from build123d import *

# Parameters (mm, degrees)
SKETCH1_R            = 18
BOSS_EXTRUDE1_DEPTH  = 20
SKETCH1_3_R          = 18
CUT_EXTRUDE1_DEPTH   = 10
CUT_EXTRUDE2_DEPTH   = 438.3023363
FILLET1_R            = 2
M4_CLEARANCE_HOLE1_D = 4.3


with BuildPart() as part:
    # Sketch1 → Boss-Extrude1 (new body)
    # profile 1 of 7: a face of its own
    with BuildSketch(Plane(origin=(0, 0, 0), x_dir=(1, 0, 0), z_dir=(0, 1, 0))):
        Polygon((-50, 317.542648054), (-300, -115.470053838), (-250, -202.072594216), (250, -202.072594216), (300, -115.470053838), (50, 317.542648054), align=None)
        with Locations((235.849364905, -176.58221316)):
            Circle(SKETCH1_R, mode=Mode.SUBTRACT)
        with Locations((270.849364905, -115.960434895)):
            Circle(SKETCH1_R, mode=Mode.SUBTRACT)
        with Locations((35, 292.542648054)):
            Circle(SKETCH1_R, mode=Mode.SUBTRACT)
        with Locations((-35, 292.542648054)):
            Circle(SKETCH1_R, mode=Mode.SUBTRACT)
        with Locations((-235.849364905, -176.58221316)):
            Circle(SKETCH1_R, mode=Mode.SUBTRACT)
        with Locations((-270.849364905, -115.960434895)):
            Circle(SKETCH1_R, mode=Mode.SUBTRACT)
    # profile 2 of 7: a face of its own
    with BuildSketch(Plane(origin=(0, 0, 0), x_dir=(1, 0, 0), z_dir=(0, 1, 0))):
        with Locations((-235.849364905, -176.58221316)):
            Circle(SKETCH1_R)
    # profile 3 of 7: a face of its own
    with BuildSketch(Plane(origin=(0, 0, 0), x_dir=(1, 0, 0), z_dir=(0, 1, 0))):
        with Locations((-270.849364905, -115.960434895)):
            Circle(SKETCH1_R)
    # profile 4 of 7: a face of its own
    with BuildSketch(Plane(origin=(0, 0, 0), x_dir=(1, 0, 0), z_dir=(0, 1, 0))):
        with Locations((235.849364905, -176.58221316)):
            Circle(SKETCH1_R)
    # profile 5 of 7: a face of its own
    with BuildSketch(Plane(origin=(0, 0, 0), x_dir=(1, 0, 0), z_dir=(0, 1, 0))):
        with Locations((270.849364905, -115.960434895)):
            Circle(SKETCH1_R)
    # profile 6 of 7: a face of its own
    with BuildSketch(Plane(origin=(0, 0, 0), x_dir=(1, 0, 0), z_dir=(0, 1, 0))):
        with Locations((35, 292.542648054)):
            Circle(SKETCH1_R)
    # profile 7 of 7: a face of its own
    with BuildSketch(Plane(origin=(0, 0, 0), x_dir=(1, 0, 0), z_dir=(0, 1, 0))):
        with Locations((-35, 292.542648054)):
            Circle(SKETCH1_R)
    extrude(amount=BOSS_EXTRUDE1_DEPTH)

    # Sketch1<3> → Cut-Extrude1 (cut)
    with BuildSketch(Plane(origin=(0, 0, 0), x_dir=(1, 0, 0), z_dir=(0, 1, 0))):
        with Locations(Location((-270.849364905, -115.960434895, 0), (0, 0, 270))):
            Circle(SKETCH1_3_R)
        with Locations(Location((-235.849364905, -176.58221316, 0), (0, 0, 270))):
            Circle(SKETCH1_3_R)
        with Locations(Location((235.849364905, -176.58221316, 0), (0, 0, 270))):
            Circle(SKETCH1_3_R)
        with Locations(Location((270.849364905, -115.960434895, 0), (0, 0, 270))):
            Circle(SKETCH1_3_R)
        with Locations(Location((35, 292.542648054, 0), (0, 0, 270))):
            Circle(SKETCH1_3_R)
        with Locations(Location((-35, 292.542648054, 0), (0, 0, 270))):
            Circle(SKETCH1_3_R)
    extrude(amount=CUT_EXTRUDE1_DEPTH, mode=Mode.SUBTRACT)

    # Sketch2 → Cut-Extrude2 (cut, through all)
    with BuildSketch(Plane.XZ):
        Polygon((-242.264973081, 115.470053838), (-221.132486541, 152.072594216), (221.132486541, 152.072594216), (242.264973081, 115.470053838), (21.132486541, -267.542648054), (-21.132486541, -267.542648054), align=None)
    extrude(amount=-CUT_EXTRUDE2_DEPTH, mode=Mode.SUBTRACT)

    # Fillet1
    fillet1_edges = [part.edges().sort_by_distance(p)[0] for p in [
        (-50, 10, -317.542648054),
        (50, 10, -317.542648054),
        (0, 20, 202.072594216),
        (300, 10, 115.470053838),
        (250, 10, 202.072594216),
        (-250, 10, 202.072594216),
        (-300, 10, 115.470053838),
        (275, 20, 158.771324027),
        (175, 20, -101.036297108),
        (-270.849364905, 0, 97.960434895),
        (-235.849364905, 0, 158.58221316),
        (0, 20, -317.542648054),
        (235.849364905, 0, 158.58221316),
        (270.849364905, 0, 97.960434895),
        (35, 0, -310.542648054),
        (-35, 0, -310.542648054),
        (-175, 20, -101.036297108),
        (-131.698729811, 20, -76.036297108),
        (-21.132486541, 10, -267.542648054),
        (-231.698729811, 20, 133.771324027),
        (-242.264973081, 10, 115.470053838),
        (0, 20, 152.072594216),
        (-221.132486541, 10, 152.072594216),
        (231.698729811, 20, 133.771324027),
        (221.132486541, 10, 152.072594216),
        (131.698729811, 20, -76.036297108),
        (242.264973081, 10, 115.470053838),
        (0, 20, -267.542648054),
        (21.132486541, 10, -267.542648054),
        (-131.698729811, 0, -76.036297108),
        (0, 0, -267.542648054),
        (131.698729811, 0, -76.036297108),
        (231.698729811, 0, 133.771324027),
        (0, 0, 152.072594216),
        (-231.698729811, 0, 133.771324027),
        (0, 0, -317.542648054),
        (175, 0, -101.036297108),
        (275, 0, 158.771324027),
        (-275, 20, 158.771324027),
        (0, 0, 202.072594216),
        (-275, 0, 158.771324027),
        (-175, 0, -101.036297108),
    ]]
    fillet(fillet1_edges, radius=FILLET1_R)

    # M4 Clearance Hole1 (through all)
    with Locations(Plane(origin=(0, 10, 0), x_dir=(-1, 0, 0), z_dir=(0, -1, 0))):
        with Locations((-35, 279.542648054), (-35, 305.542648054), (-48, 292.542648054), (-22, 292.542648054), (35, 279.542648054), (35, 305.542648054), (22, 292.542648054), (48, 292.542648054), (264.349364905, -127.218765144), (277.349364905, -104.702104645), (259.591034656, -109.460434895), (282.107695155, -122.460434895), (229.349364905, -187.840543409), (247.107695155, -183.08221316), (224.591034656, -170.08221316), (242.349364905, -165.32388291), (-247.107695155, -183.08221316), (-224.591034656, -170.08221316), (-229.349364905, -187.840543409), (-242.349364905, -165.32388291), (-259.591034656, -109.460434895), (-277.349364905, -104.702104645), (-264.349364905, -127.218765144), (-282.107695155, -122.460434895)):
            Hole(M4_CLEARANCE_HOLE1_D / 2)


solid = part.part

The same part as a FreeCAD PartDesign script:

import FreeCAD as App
import Part
import Sketcher

V = App.Vector
Q = App.Units.Quantity


def edges_at(feature, points):
    """Names of the edges that pass closest to the given points."""
    edges = feature.Shape.Edges
    near = lambda p: min(range(len(edges)), key=lambda i: edges[i].distToShape(Part.Vertex(*p))[0])
    return sorted({f"Edge{near(p) + 1}" for p in points})


def add_polygon(sketch, points):
    """Adds a closed chain of lines whose ends are joined by coincident constraints."""
    first, n = sketch.GeometryCount, len(points)
    for a, b in zip(points, points[1:] + points[:1]):
        sketch.addGeometry(Part.LineSegment(App.Vector(*a, 0), App.Vector(*b, 0)), False)
    for i in range(n):
        sketch.addConstraint(Sketcher.Constraint("Coincident", first + i, 2, first + (i + 1) % n, 1))

doc = App.newDocument("Part")
body = doc.addObject("PartDesign::Body", "Body")

sketch1 = body.newObject("Sketcher::SketchObject", "Sketch")
sketch1.AttachmentSupport = (doc.getObject("XZ_Plane"), [""])
sketch1.MapMode = "FlatFace"
add_polygon(sketch1, [(-50, -318), (-300, 115), (-250, 202), (250, 202), (300, 115), (50, -318)])
sketch1.addConstraint([
    Sketcher.Constraint("Horizontal", 2),
    Sketcher.Constraint("Horizontal", 5),
    Sketcher.Constraint("Symmetric", 0, 2, 3, 2, -2),
    Sketcher.Constraint("Parallel", 0, 3),
    Sketcher.Constraint("Parallel", 1, 4),
    Sketcher.Constraint("Equal", 1, 3),
    Sketcher.Constraint("DistanceX", 2, 1, 2, 2, 500.0),
    Sketcher.Constraint("DistanceX", 5, 2, 5, 1, 100.0),
    Sketcher.Constraint("Angle", 0, Q("120 deg")),
    Sketcher.Constraint("Distance", 0, 500.0),
    Sketcher.Constraint("DistanceY", 4, 2, -1, 1, 317.542648),
])
pad1 = body.newObject("PartDesign::Pad", "Pad")
pad1.Profile = sketch1
pad1.Length = 20
pad1.Reversed = True

sketch2 = body.newObject("Sketcher::SketchObject", "Sketch001")
sketch2.AttachmentSupport = (doc.getObject("XZ_Plane"), [""])
sketch2.MapMode = "FlatFace"
sketch2.addGeometry([
    Part.Circle(V(-271, 116, 0), V(0, 0, 1), 18),
    Part.Circle(V(-236, 177, 0), V(0, 0, 1), 18),
    Part.Circle(V(236, 177, 0), V(0, 0, 1), 18),
    Part.Circle(V(271, 116, 0), V(0, 0, 1), 18),
    Part.Circle(V(35, -293, 0), V(0, 0, 1), 18),
    Part.Circle(V(-35, -293, 0), V(0, 0, 1), 18),
], False)
sketch2.addConstraint([
    Sketcher.Constraint("Equal", 0, 1),
    Sketcher.Constraint("Equal", 1, 2),
    Sketcher.Constraint("Equal", 2, 3),
    Sketcher.Constraint("Equal", 3, 4),
    Sketcher.Constraint("Equal", 4, 5),
    Sketcher.Constraint("Symmetric", 1, 3, 2, 3, -2),
    Sketcher.Constraint("Symmetric", 0, 3, 3, 3, -2),
    Sketcher.Constraint("Symmetric", 4, 3, 5, 3, -2),
    Sketcher.Constraint("Diameter", 0, 36.0),
    Sketcher.Constraint("DistanceX", -1, 1, 4, 3, 35.0),
    Sketcher.Constraint("DistanceX", 0, 3, 1, 3, 35.0),
    Sketcher.Constraint("DistanceY", 4, 3, -1, 1, 292.542648),
    Sketcher.Constraint("DistanceY", 0, 3, 1, 3, 60.621778),
    Sketcher.Constraint("DistanceX", 1, 3, 2, 3, 471.69873),
    Sketcher.Constraint("DistanceY", 4, 3, 2, 3, 469.124861),
])
pocket1 = body.newObject("PartDesign::Pocket", "Pocket")
pocket1.Profile = sketch2
pocket1.Length = 10

sketch3 = body.newObject("Sketcher::SketchObject", "Sketch002")
sketch3.AttachmentSupport = (doc.getObject("XZ_Plane"), [""])
sketch3.MapMode = "FlatFace"
add_polygon(sketch3, [(-221, 152), (-242, 115), (-21, -268), (21, -268), (242, 115), (221, 152)])
sketch3.addConstraint([
    Sketcher.Constraint("Horizontal", 2),
    Sketcher.Constraint("Horizontal", 5),
    Sketcher.Constraint("Symmetric", 0, 2, 3, 2, -2),
    Sketcher.Constraint("Parallel", 0, 3),
    Sketcher.Constraint("Parallel", 1, 4),
    Sketcher.Constraint("Equal", 1, 3),
    Sketcher.Constraint("Angle", 0, Q("-120 deg")),
    Sketcher.Constraint("DistanceX", 2, 2, 4, 2, 200.0),
    Sketcher.Constraint("DistanceY", 1, 2, 0, 2, 383.012702),
    Sketcher.Constraint("DistanceX", 2, 1, 2, 2, 42.264973),
    Sketcher.Constraint("DistanceY", 1, 2, -1, 1, 267.542648),
])
pocket2 = body.newObject("PartDesign::Pocket", "Pocket001")
pocket2.Profile = sketch3
pocket2.Type = "ThroughAll"
doc.recompute()

fillet = body.newObject("PartDesign::Fillet", "Fillet")
fillet.Base = (pocket2, edges_at(pocket2, [
    (-50, 10, -317.543),
    (50, 10, -317.543),
    (0, 20, 202.073),
    (300, 10, 115.47),
    (250, 10, 202.073),
    (-250, 10, 202.073),
    (-300, 10, 115.47),
    (275, 20, 158.771),
    (175, 20, -101.036),
    (-270.849, 0, 97.96),
    (-235.849, 0, 158.582),
    (0, 20, -317.543),
    (235.849, 0, 158.582),
    (270.849, 0, 97.96),
    (35, 0, -310.543),
    (-35, 0, -310.543),
    (-175, 20, -101.036),
    (-131.699, 20, -76.036),
    (-21.132, 10, -267.543),
    (-231.699, 20, 133.771),
    (-242.265, 10, 115.47),
    (0, 20, 152.073),
    (-221.132, 10, 152.073),
    (231.699, 20, 133.771),
    (221.132, 10, 152.073),
    (131.699, 20, -76.036),
    (242.265, 10, 115.47),
    (0, 20, -267.543),
    (21.132, 10, -267.543),
    (-131.699, 0, -76.036),
    (0, 0, -267.543),
    (131.699, 0, -76.036),
    (231.699, 0, 133.771),
    (0, 0, 152.073),
    (-231.699, 0, 133.771),
    (0, 0, -317.543),
    (175, 0, -101.036),
    (275, 0, 158.771),
    (-275, 20, 158.771),
    (0, 0, 202.073),
    (-275, 0, 158.771),
    (-175, 0, -101.036),
]))
fillet.Radius = 2

sketch4 = body.newObject("Sketcher::SketchObject", "Sketch003")
sketch4.AttachmentSupport = (doc.getObject("XZ_Plane"), [""])
sketch4.MapMode = "FlatFace"
sketch4.AttachmentOffset = App.Placement(V(0, 0, -10), App.Rotation())
sketch4.addGeometry([
    Part.Circle(V(35, -279.5, 0), V(0, 0, 1), 2.1),
    Part.Circle(V(35, -305.5, 0), V(0, 0, 1), 2.1),
    Part.Circle(V(48, -292.5, 0), V(0, 0, 1), 2.1),
    Part.Circle(V(22, -292.5, 0), V(0, 0, 1), 2.1),
    Part.Circle(V(-35, -279.5, 0), V(0, 0, 1), 2.1),
    Part.Circle(V(-35, -305.5, 0), V(0, 0, 1), 2.1),
    Part.Circle(V(-22, -292.5, 0), V(0, 0, 1), 2.1),
    Part.Circle(V(-48, -292.5, 0), V(0, 0, 1), 2.1),
    Part.Circle(V(-264.3, 127.2, 0), V(0, 0, 1), 2.1),
    Part.Circle(V(-277.3, 104.7, 0), V(0, 0, 1), 2.1),
    Part.Circle(V(-259.6, 109.5, 0), V(0, 0, 1), 2.1),
    Part.Circle(V(-282.1, 122.5, 0), V(0, 0, 1), 2.1),
    Part.Circle(V(-229.3, 187.8, 0), V(0, 0, 1), 2.1),
    Part.Circle(V(-247.1, 183.1, 0), V(0, 0, 1), 2.1),
    Part.Circle(V(-224.6, 170.1, 0), V(0, 0, 1), 2.1),
    Part.Circle(V(-242.3, 165.3, 0), V(0, 0, 1), 2.1),
    Part.Circle(V(247.1, 183.1, 0), V(0, 0, 1), 2.1),
    Part.Circle(V(224.6, 170.1, 0), V(0, 0, 1), 2.1),
    Part.Circle(V(229.3, 187.8, 0), V(0, 0, 1), 2.1),
    Part.Circle(V(242.3, 165.3, 0), V(0, 0, 1), 2.1),
    Part.Circle(V(259.6, 109.5, 0), V(0, 0, 1), 2.1),
    Part.Circle(V(277.3, 104.7, 0), V(0, 0, 1), 2.1),
    Part.Circle(V(264.3, 127.2, 0), V(0, 0, 1), 2.1),
    Part.Circle(V(282.1, 122.5, 0), V(0, 0, 1), 2.1),
], False)
sketch4.addConstraint([
    Sketcher.Constraint("Equal", 0, 1),
    Sketcher.Constraint("Equal", 1, 2),
    Sketcher.Constraint("Equal", 2, 3),
    Sketcher.Constraint("Equal", 3, 4),
    Sketcher.Constraint("Equal", 4, 5),
    Sketcher.Constraint("Equal", 5, 6),
    Sketcher.Constraint("Equal", 6, 7),
    Sketcher.Constraint("Equal", 7, 8),
    Sketcher.Constraint("Equal", 8, 9),
    Sketcher.Constraint("Equal", 9, 10),
    Sketcher.Constraint("Equal", 10, 11),
    Sketcher.Constraint("Equal", 11, 12),
    Sketcher.Constraint("Equal", 12, 13),
    Sketcher.Constraint("Equal", 13, 14),
    Sketcher.Constraint("Equal", 14, 15),
    Sketcher.Constraint("Equal", 15, 16),
    Sketcher.Constraint("Equal", 16, 17),
    Sketcher.Constraint("Equal", 17, 18),
    Sketcher.Constraint("Equal", 18, 19),
    Sketcher.Constraint("Equal", 19, 20),
    Sketcher.Constraint("Equal", 20, 21),
    Sketcher.Constraint("Equal", 21, 22),
    Sketcher.Constraint("Equal", 22, 23),
    Sketcher.Constraint("Symmetric", 0, 3, 4, 3, -2),
    Sketcher.Constraint("Symmetric", 1, 3, 5, 3, -2),
    Sketcher.Constraint("Symmetric", 3, 3, 6, 3, -2),
    Sketcher.Constraint("Symmetric", 2, 3, 7, 3, -2),
    Sketcher.Constraint("Symmetric", 13, 3, 16, 3, -2),
    Sketcher.Constraint("Symmetric", 14, 3, 17, 3, -2),
    Sketcher.Constraint("Symmetric", 12, 3, 18, 3, -2),
    Sketcher.Constraint("Symmetric", 15, 3, 19, 3, -2),
    Sketcher.Constraint("Symmetric", 10, 3, 20, 3, -2),
    Sketcher.Constraint("Symmetric", 9, 3, 21, 3, -2),
    Sketcher.Constraint("Symmetric", 8, 3, 22, 3, -2),
    Sketcher.Constraint("Symmetric", 11, 3, 23, 3, -2),
    Sketcher.Constraint("Horizontal", 2, 3, 3, 3),
    Sketcher.Constraint("Vertical", 0, 3, 1, 3),
    Sketcher.Constraint("Diameter", 0, 4.3),
    Sketcher.Constraint("DistanceX", -1, 1, 0, 3, 35.0),
    Sketcher.Constraint("DistanceX", -1, 1, 2, 3, 48.0),
    Sketcher.Constraint("DistanceX", -1, 1, 3, 3, 22.0),
    Sketcher.Constraint("DistanceY", 1, 3, 0, 3, 26.0),
    Sketcher.Constraint("DistanceY", 2, 3, 0, 3, 13.0),
    Sketcher.Constraint("DistanceX", 9, 3, 8, 3, 13.0),
    Sketcher.Constraint("DistanceY", 10, 3, 11, 3, 13.0),
    Sketcher.Constraint("DistanceX", 8, 3, 12, 3, 35.0),
    Sketcher.Constraint("DistanceX", 11, 3, 13, 3, 35.0),
    Sketcher.Constraint("DistanceY", 14, 3, 13, 3, 13.0),
    Sketcher.Constraint("DistanceX", 10, 3, 14, 3, 35.0),
    Sketcher.Constraint("DistanceX", 15, 3, 12, 3, 13.0),
    Sketcher.Constraint("DistanceX", 12, 3, 17, 3, 453.9404),
    Sketcher.Constraint("DistanceY", 0, 3, -1, 1, 279.542648),
    Sketcher.Constraint("DistanceY", 9, 3, 8, 3, 22.51666),
    Sketcher.Constraint("DistanceX", 8, 3, 10, 3, 4.75833),
    Sketcher.Constraint("DistanceY", 10, 3, 8, 3, 17.75833),
    Sketcher.Constraint("DistanceX", 11, 3, 8, 3, 17.75833),
    Sketcher.Constraint("DistanceY", 8, 3, 12, 3, 60.621778),
    Sketcher.Constraint("DistanceY", 4, 3, 12, 3, 467.383191),
    Sketcher.Constraint("DistanceY", 13, 3, 12, 3, 4.75833),
    Sketcher.Constraint("DistanceY", 15, 3, 14, 3, 4.75833),
])
doc.recompute()
hole = body.newObject("PartDesign::Hole", "Hole")
hole.Profile = sketch4
hole.ThreadType = "None"
hole.Diameter = 4.3
hole.DepthType = "ThroughAll"

doc.recompute()
